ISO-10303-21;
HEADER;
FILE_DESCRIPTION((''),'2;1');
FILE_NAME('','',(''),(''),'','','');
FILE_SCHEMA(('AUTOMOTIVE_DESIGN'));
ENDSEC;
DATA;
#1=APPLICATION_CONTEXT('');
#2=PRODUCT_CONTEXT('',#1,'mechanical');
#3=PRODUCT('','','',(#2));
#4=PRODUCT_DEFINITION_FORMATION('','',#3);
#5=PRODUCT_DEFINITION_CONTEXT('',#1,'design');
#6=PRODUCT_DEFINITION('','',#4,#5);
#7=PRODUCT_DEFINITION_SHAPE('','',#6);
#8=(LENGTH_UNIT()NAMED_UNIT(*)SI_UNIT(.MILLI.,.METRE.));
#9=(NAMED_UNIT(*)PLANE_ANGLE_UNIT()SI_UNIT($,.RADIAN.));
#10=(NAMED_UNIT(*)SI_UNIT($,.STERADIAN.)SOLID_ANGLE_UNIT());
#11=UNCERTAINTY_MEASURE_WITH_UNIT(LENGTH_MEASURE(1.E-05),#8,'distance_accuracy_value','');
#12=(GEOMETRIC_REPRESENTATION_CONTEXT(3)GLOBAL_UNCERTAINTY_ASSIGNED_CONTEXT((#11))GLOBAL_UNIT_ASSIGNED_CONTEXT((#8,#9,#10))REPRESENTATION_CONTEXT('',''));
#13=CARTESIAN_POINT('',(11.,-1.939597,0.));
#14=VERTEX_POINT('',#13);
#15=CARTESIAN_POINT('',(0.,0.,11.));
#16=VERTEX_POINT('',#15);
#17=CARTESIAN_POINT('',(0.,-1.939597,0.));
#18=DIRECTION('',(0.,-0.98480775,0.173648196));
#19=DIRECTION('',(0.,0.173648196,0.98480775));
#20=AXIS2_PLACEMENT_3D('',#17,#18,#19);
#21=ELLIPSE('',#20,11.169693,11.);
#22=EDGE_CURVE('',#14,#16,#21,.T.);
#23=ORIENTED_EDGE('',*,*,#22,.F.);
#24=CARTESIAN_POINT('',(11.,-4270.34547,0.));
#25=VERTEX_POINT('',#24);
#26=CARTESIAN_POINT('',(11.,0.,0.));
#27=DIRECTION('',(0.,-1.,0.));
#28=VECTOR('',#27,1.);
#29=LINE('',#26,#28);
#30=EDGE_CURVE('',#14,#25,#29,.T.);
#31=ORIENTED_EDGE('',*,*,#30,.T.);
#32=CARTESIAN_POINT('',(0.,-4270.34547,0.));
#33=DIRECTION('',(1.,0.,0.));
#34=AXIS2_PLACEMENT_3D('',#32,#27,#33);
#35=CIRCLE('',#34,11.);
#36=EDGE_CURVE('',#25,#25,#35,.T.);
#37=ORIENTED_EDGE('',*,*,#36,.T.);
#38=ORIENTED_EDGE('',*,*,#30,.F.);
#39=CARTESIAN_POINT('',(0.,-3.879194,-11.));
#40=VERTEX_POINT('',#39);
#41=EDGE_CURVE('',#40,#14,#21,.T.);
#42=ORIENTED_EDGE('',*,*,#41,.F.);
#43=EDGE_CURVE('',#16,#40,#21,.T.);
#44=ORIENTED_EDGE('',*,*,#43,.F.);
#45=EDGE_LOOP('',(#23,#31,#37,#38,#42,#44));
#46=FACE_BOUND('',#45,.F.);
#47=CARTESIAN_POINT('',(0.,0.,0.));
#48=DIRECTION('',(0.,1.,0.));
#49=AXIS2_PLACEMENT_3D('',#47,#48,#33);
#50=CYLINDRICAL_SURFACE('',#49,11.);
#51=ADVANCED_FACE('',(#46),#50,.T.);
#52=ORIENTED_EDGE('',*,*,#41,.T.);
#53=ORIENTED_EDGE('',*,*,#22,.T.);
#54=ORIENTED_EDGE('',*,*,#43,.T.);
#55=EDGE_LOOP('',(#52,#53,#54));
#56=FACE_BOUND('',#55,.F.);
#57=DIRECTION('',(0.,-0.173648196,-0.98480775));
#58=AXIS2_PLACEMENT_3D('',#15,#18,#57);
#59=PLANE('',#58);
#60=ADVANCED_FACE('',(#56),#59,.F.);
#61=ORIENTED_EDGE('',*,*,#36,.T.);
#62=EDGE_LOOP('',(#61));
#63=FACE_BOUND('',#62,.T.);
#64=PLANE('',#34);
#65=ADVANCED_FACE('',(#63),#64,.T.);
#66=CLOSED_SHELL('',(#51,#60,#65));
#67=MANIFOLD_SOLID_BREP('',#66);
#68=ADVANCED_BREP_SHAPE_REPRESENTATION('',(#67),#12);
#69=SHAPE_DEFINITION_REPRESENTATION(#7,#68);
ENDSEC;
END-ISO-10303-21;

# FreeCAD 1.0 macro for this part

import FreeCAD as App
import Part
import Sketcher
Q = App.Units.Quantity

doc = App.newDocument("Part")
body = doc.addObject("PartDesign::Body", "Body")

sketch1 = doc.addObject("Sketcher::SketchObject", "Sketch")
body.addObject(sketch1)
sketch1.AttachmentSupport = (doc.XZ_Plane, [""])
sketch1.MapMode = "FlatFace"
sketch1.addGeometry(Part.Circle(App.Vector(0, 0, 0), App.Vector(0, 0, 1), 11), False)
sketch1.addConstraint([
    Sketcher.Constraint("Coincident", 0, 3, -1, 1),
    Sketcher.Constraint("Diameter", 0, 22.0),
])
pad1 = doc.addObject("PartDesign::Pad", "Pad")
body.addObject(pad1)
pad1.Profile = sketch1
pad1.Length = 4270.34547

sketch2 = doc.addObject("Sketcher::SketchObject", "Sketch001")
body.addObject(sketch2)
sketch2.AttachmentSupport = (doc.YZ_Plane, [""])
sketch2.MapMode = "FlatFace"
sketch2.addGeometry([
    Part.LineSegment(App.Vector(-3.9, -11, 0), App.Vector(0, -11, 0)),
    Part.LineSegment(App.Vector(0, -11, 0), App.Vector(0, 11, 0)),
    Part.LineSegment(App.Vector(0, 11, 0), App.Vector(-3.9, -11, 0)),
], False)
sketch2.addConstraint([
    Sketcher.Constraint("Coincident", 0, 2, 1, 1),
    Sketcher.Constraint("Coincident", 1, 2, 2, 1),
    Sketcher.Constraint("Coincident", 2, 2, 0, 1),
    Sketcher.Constraint("Horizontal", 0),
    Sketcher.Constraint("Vertical", 1),
    Sketcher.Constraint("Symmetric", 0, 2, 1, 2, -1, 1),
    Sketcher.Constraint("DistanceY", 1, 1, 1, 2, 22.0),
    Sketcher.Constraint("Angle", 2, Q("-100.000001 deg")),
])
pocket1 = doc.addObject("PartDesign::Pocket", "Pocket")
body.addObject(pocket1)
pocket1.Profile = sketch2
pocket1.Length = 50
pocket1.Midplane = True

doc.recompute()
